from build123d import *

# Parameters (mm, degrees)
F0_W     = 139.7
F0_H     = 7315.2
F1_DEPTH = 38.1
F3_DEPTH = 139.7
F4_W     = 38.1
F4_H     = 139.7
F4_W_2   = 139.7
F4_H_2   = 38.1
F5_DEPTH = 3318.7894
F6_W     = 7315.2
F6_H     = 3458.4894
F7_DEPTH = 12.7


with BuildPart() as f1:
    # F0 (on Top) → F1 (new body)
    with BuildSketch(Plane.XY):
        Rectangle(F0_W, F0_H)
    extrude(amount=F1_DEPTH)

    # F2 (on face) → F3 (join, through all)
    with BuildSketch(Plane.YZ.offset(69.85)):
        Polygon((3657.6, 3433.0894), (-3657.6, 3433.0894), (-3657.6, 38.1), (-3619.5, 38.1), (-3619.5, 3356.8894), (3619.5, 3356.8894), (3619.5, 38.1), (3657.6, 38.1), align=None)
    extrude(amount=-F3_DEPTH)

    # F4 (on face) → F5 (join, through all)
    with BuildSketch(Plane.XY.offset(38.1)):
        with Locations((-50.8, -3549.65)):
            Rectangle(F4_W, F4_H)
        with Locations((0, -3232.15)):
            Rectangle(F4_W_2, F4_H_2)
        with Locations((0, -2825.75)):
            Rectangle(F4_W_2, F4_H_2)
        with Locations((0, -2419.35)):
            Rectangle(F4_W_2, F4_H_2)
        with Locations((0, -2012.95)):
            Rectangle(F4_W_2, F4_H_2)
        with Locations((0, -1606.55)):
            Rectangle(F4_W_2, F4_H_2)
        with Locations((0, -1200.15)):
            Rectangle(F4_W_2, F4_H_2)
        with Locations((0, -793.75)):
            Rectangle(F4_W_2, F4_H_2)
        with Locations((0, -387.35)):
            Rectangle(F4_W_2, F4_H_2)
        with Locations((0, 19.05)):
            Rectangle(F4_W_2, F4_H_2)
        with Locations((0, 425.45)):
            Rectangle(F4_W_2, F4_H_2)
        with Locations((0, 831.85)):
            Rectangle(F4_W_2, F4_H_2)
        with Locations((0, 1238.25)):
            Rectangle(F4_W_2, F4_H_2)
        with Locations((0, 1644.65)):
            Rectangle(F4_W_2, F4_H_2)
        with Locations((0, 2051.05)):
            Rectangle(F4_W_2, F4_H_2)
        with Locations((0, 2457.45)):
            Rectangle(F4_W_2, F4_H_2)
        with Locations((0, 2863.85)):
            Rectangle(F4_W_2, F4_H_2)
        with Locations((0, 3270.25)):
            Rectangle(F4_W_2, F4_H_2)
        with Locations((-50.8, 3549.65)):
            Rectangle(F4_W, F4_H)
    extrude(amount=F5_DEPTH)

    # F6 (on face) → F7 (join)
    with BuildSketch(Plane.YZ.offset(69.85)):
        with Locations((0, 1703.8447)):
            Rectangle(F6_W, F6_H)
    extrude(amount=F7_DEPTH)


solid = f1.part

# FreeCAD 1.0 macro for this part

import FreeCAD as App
import Part
import Sketcher
from FreeCAD import Vector
Q = App.Units.Quantity

doc = App.newDocument("Part")
body = doc.addObject("PartDesign::Body", "Body")

# Sketch on XY plane
sketch1 = body.newObject("Sketcher::SketchObject", "Sketch")
sketch1.AttachmentSupport = (doc.getObject("XY_Plane"), [""])
sketch1.MapMode = "FlatFace"
sketch1.addGeometry([
    Part.LineSegment(Vector(-69.85, 3657.6, 0), Vector(-69.85, -3657.6, 0)),
    Part.LineSegment(Vector(-69.85, -3657.6, 0), Vector(69.85, -3657.6, 0)),
    Part.LineSegment(Vector(69.85, -3657.6, 0), Vector(69.85, 3657.6, 0)),
    Part.LineSegment(Vector(69.85, 3657.6, 0), Vector(-69.85, 3657.6, 0)),
], False)
sketch1.addConstraint([
    Sketcher.Constraint("Coincident", 0, 2, 1, 1),
    Sketcher.Constraint("Coincident", 1, 2, 2, 1),
    Sketcher.Constraint("Coincident", 2, 2, 3, 1),
    Sketcher.Constraint("Coincident", 3, 2, 0, 1),
    Sketcher.Constraint("Vertical", 0),
    Sketcher.Constraint("Horizontal", 1),
    Sketcher.Constraint("Vertical", 2),
    Sketcher.Constraint("Horizontal", 3),
    Sketcher.Constraint("Symmetric", 0, 2, 2, 2, -1, 1),
    Sketcher.Constraint("DistanceY", 0, 2, 0, 1, Q("288 in")),
    Sketcher.Constraint("DistanceX", 1, 1, 1, 2, Q("5.5 in")),
])
pad1 = body.newObject("PartDesign::Pad", "Pad")
pad1.Profile = sketch1
pad1.Length = Q("1.5 in")

# Sketch on YZ plane
sketch2 = body.newObject("Sketcher::SketchObject", "Sketch001")
sketch2.AttachmentSupport = (doc.getObject("YZ_Plane"), [""])
sketch2.MapMode = "FlatFace"
sketch2.AttachmentOffset = App.Placement(Vector(0, 0, 2.75 * 25.4), App.Rotation())
sketch2.addGeometry([
    Part.LineSegment(Vector(3657.6, 3433.0894, 0), Vector(-3657.6, 3433.0894, 0)),  # 0
    Part.LineSegment(Vector(-3657.6, 3433.0894, 0), Vector(-3657.6, 38.1, 0)),  # 1
    Part.LineSegment(Vector(-3657.6, 38.1, 0), Vector(-3619.5, 38.1, 0)),  # 2
    Part.LineSegment(Vector(-3619.5, 38.1, 0), Vector(-3619.5, 3356.8894, 0)),  # 3
    Part.LineSegment(Vector(-3619.5, 3356.8894, 0), Vector(3619.5, 3356.8894, 0)),  # 4
    Part.LineSegment(Vector(3619.5, 3356.8894, 0), Vector(3619.5, 38.1, 0)),  # 5
    Part.LineSegment(Vector(3619.5, 38.1, 0), Vector(3657.6, 38.1, 0)),  # 6
    Part.LineSegment(Vector(3657.6, 38.1, 0), Vector(3657.6, 3433.0894, 0)),  # 7
], False)
sketch2.addConstraint([
    Sketcher.Constraint("Coincident", 0, 2, 1, 1),
    Sketcher.Constraint("Coincident", 1, 2, 2, 1),
    Sketcher.Constraint("Coincident", 2, 2, 3, 1),
    Sketcher.Constraint("Coincident", 3, 2, 4, 1),
    Sketcher.Constraint("Coincident", 4, 2, 5, 1),
    Sketcher.Constraint("Coincident", 5, 2, 6, 1),
    Sketcher.Constraint("Coincident", 6, 2, 7, 1),
    Sketcher.Constraint("Coincident", 7, 2, 0, 1),
    Sketcher.Constraint("Horizontal", 0),
    Sketcher.Constraint("Vertical", 1),
    Sketcher.Constraint("Horizontal", 2),
    Sketcher.Constraint("Vertical", 3),
    Sketcher.Constraint("Horizontal", 4),
    Sketcher.Constraint("Vertical", 5),
    Sketcher.Constraint("Horizontal", 6),
    Sketcher.Constraint("Vertical", 7),
    Sketcher.Constraint("Symmetric", 2, 2, 5, 2, -2),
    Sketcher.Constraint("Equal", 2, 6),
    Sketcher.Constraint("DistanceX", 0, 2, 0, 1, Q("288 in")),
    Sketcher.Constraint("DistanceX", 4, 1, 4, 2, Q("285 in")),
    Sketcher.Constraint("DistanceY", 3, 2, 0, 2, Q("3 in")),
    Sketcher.Constraint("DistanceY", -1, 1, 1, 2, Q("1.5 in")),
    Sketcher.Constraint("DistanceY", 1, 2, 1, 1, Q("133.661 in")),
])
pad2 = body.newObject("PartDesign::Pad", "Pad001")
pad2.Profile = sketch2
pad2.Length = Q("5.5 in")
pad2.Reversed = True

# Sketch on XY plane
sketch3 = body.newObject("Sketcher::SketchObject", "Sketch002")
sketch3.AttachmentSupport = (doc.getObject("XY_Plane"), [""])
sketch3.MapMode = "FlatFace"
sketch3.AttachmentOffset = App.Placement(Vector(0, 0, 1.5 * 25.4), App.Rotation())
sketch3.addGeometry([
    Part.LineSegment(Vector(-69.85, -3479.8, 0), Vector(-69.85, -3619.5, 0)),  # 0
    Part.LineSegment(Vector(-69.85, -3619.5, 0), Vector(-31.75, -3619.5, 0)),  # 1
    Part.LineSegment(Vector(-31.75, -3619.5, 0), Vector(-31.75, -3479.8, 0)),  # 2
    Part.LineSegment(Vector(-31.75, -3479.8, 0), Vector(-69.85, -3479.8, 0)),  # 3
    Part.LineSegment(Vector(-69.85, -3213.1, 0), Vector(-69.85, -3251.2, 0)),  # 4
    Part.LineSegment(Vector(-69.85, -3251.2, 0), Vector(69.85, -3251.2, 0)),  # 5
    Part.LineSegment(Vector(69.85, -3251.2, 0), Vector(69.85, -3213.1, 0)),  # 6
    Part.LineSegment(Vector(69.85, -3213.1, 0), Vector(-69.85, -3213.1, 0)),  # 7
    Part.LineSegment(Vector(-69.85, -2806.7, 0), Vector(-69.85, -2844.8, 0)),  # 8
    Part.LineSegment(Vector(-69.85, -2844.8, 0), Vector(69.85, -2844.8, 0)),  # 9
    Part.LineSegment(Vector(69.85, -2844.8, 0), Vector(69.85, -2806.7, 0)),  # 10
    Part.LineSegment(Vector(69.85, -2806.7, 0), Vector(-69.85, -2806.7, 0)),  # 11
    Part.LineSegment(Vector(-69.85, -2400.3, 0), Vector(-69.85, -2438.4, 0)),  # 12
    Part.LineSegment(Vector(-69.85, -2438.4, 0), Vector(69.85, -2438.4, 0)),  # 13
    Part.LineSegment(Vector(69.85, -2438.4, 0), Vector(69.85, -2400.3, 0)),  # 14
    Part.LineSegment(Vector(69.85, -2400.3, 0), Vector(-69.85, -2400.3, 0)),  # 15
    Part.LineSegment(Vector(-69.85, -1993.9, 0), Vector(-69.85, -2032, 0)),  # 16
    Part.LineSegment(Vector(-69.85, -2032, 0), Vector(69.85, -2032, 0)),  # 17
    Part.LineSegment(Vector(69.85, -2032, 0), Vector(69.85, -1993.9, 0)),  # 18
    Part.LineSegment(Vector(69.85, -1993.9, 0), Vector(-69.85, -1993.9, 0)),  # 19
    Part.LineSegment(Vector(-69.85, -1587.5, 0), Vector(-69.85, -1625.6, 0)),  # 20
    Part.LineSegment(Vector(-69.85, -1625.6, 0), Vector(69.85, -1625.6, 0)),  # 21
    Part.LineSegment(Vector(69.85, -1625.6, 0), Vector(69.85, -1587.5, 0)),  # 22
    Part.LineSegment(Vector(69.85, -1587.5, 0), Vector(-69.85, -1587.5, 0)),  # 23
    Part.LineSegment(Vector(-69.85, -1181.1, 0), Vector(-69.85, -1219.2, 0)),  # 24
    Part.LineSegment(Vector(-69.85, -1219.2, 0), Vector(69.85, -1219.2, 0)),  # 25
    Part.LineSegment(Vector(69.85, -1219.2, 0), Vector(69.85, -1181.1, 0)),  # 26
    Part.LineSegment(Vector(69.85, -1181.1, 0), Vector(-69.85, -1181.1, 0)),  # 27
    Part.LineSegment(Vector(-69.85, -774.7, 0), Vector(-69.85, -812.8, 0)),  # 28
    Part.LineSegment(Vector(-69.85, -812.8, 0), Vector(69.85, -812.8, 0)),  # 29
    Part.LineSegment(Vector(69.85, -812.8, 0), Vector(69.85, -774.7, 0)),  # 30
    Part.LineSegment(Vector(69.85, -774.7, 0), Vector(-69.85, -774.7, 0)),  # 31
    Part.LineSegment(Vector(-69.85, -368.3, 0), Vector(-69.85, -406.4, 0)),  # 32
    Part.LineSegment(Vector(-69.85, -406.4, 0), Vector(69.85, -406.4, 0)),  # 33
    Part.LineSegment(Vector(69.85, -406.4, 0), Vector(69.85, -368.3, 0)),  # 34
    Part.LineSegment(Vector(69.85, -368.3, 0), Vector(-69.85, -368.3, 0)),  # 35
    Part.LineSegment(Vector(-69.85, 38.1, 0), Vector(-69.85, 0, 0)),  # 36
    Part.LineSegment(Vector(-69.85, 0, 0), Vector(69.85, 0, 0)),  # 37
    Part.LineSegment(Vector(69.85, 0, 0), Vector(69.85, 38.1, 0)),  # 38
    Part.LineSegment(Vector(69.85, 38.1, 0), Vector(-69.85, 38.1, 0)),  # 39
    Part.LineSegment(Vector(-69.85, 444.5, 0), Vector(-69.85, 406.4, 0)),  # 40
    Part.LineSegment(Vector(-69.85, 406.4, 0), Vector(69.85, 406.4, 0)),  # 41
    Part.LineSegment(Vector(69.85, 406.4, 0), Vector(69.85, 444.5, 0)),  # 42
    Part.LineSegment(Vector(69.85, 444.5, 0), Vector(-69.85, 444.5, 0)),  # 43
    Part.LineSegment(Vector(-69.85, 850.9, 0), Vector(-69.85, 812.8, 0)),  # 44
    Part.LineSegment(Vector(-69.85, 812.8, 0), Vector(69.85, 812.8, 0)),  # 45
    Part.LineSegment(Vector(69.85, 812.8, 0), Vector(69.85, 850.9, 0)),  # 46
    Part.LineSegment(Vector(69.85, 850.9, 0), Vector(-69.85, 850.9, 0)),  # 47
    Part.LineSegment(Vector(-69.85, 1257.3, 0), Vector(-69.85, 1219.2, 0)),  # 48
    Part.LineSegment(Vector(-69.85, 1219.2, 0), Vector(69.85, 1219.2, 0)),  # 49
    Part.LineSegment(Vector(69.85, 1219.2, 0), Vector(69.85, 1257.3, 0)),  # 50
    Part.LineSegment(Vector(69.85, 1257.3, 0), Vector(-69.85, 1257.3, 0)),  # 51
    Part.LineSegment(Vector(-69.85, 1663.7, 0), Vector(-69.85, 1625.6, 0)),  # 52
    Part.LineSegment(Vector(-69.85, 1625.6, 0), Vector(69.85, 1625.6, 0)),  # 53
    Part.LineSegment(Vector(69.85, 1625.6, 0), Vector(69.85, 1663.7, 0)),  # 54
    Part.LineSegment(Vector(69.85, 1663.7, 0), Vector(-69.85, 1663.7, 0)),  # 55
    Part.LineSegment(Vector(-69.85, 2070.1, 0), Vector(-69.85, 2032, 0)),  # 56
    Part.LineSegment(Vector(-69.85, 2032, 0), Vector(69.85, 2032, 0)),  # 57
    Part.LineSegment(Vector(69.85, 2032, 0), Vector(69.85, 2070.1, 0)),  # 58
    Part.LineSegment(Vector(69.85, 2070.1, 0), Vector(-69.85, 2070.1, 0)),  # 59
    Part.LineSegment(Vector(-69.85, 2476.5, 0), Vector(-69.85, 2438.4, 0)),  # 60
    Part.LineSegment(Vector(-69.85, 2438.4, 0), Vector(69.85, 2438.4, 0)),  # 61
    Part.LineSegment(Vector(69.85, 2438.4, 0), Vector(69.85, 2476.5, 0)),  # 62
    Part.LineSegment(Vector(69.85, 2476.5, 0), Vector(-69.85, 2476.5, 0)),  # 63
    Part.LineSegment(Vector(-69.85, 2882.9, 0), Vector(-69.85, 2844.8, 0)),  # 64
    Part.LineSegment(Vector(-69.85, 2844.8, 0), Vector(69.85, 2844.8, 0)),  # 65
    Part.LineSegment(Vector(69.85, 2844.8, 0), Vector(69.85, 2882.9, 0)),  # 66
    Part.LineSegment(Vector(69.85, 2882.9, 0), Vector(-69.85, 2882.9, 0)),  # 67
    Part.LineSegment(Vector(-69.85, 3289.3, 0), Vector(-69.85, 3251.2, 0)),  # 68
    Part.LineSegment(Vector(-69.85, 3251.2, 0), Vector(69.85, 3251.2, 0)),  # 69
    Part.LineSegment(Vector(69.85, 3251.2, 0), Vector(69.85, 3289.3, 0)),  # 70
    Part.LineSegment(Vector(69.85, 3289.3, 0), Vector(-69.85, 3289.3, 0)),  # 71
    Part.LineSegment(Vector(-69.85, 3619.5, 0), Vector(-69.85, 3479.8, 0)),  # 72
    Part.LineSegment(Vector(-69.85, 3479.8, 0), Vector(-31.75, 3479.8, 0)),  # 73
    Part.LineSegment(Vector(-31.75, 3479.8, 0), Vector(-31.75, 3619.5, 0)),  # 74
    Part.LineSegment(Vector(-31.75, 3619.5, 0), Vector(-69.85, 3619.5, 0)),  # 75
], False)
sketch3.addConstraint([
    Sketcher.Constraint("Coincident", 0, 2, 1, 1),
    Sketcher.Constraint("Coincident", 1, 2, 2, 1),
    Sketcher.Constraint("Coincident", 2, 2, 3, 1),
    Sketcher.Constraint("Coincident", 3, 2, 0, 1),
    Sketcher.Constraint("Coincident", 4, 2, 5, 1),
    Sketcher.Constraint("Coincident", 5, 2, 6, 1),
    Sketcher.Constraint("Coincident", 6, 2, 7, 1),
    Sketcher.Constraint("Coincident", 7, 2, 4, 1),
    Sketcher.Constraint("Coincident", 8, 2, 9, 1),
    Sketcher.Constraint("Coincident", 9, 2, 10, 1),
    Sketcher.Constraint("Coincident", 10, 2, 11, 1),
    Sketcher.Constraint("Coincident", 11, 2, 8, 1),
    Sketcher.Constraint("Coincident", 12, 2, 13, 1),
    Sketcher.Constraint("Coincident", 13, 2, 14, 1),
    Sketcher.Constraint("Coincident", 14, 2, 15, 1),
    Sketcher.Constraint("Coincident", 15, 2, 12, 1),
    Sketcher.Constraint("Coincident", 16, 2, 17, 1),
    Sketcher.Constraint("Coincident", 17, 2, 18, 1),
    Sketcher.Constraint("Coincident", 18, 2, 19, 1),
    Sketcher.Constraint("Coincident", 19, 2, 16, 1),
    Sketcher.Constraint("Coincident", 20, 2, 21, 1),
    Sketcher.Constraint("Coincident", 21, 2, 22, 1),
    Sketcher.Constraint("Coincident", 22, 2, 23, 1),
    Sketcher.Constraint("Coincident", 23, 2, 20, 1),
    Sketcher.Constraint("Coincident", 24, 2, 25, 1),
    Sketcher.Constraint("Coincident", 25, 2, 26, 1),
    Sketcher.Constraint("Coincident", 26, 2, 27, 1),
    Sketcher.Constraint("Coincident", 27, 2, 24, 1),
    Sketcher.Constraint("Coincident", 28, 2, 29, 1),
    Sketcher.Constraint("Coincident", 29, 2, 30, 1),
    Sketcher.Constraint("Coincident", 30, 2, 31, 1),
    Sketcher.Constraint("Coincident", 31, 2, 28, 1),
    Sketcher.Constraint("Coincident", 32, 2, 33, 1),
    Sketcher.Constraint("Coincident", 33, 2, 34, 1),
    Sketcher.Constraint("Coincident", 34, 2, 35, 1),
    Sketcher.Constraint("Coincident", 35, 2, 32, 1),
    Sketcher.Constraint("Coincident", 36, 2, 37, 1),
    Sketcher.Constraint("Coincident", 37, 2, 38, 1),
    Sketcher.Constraint("Coincident", 38, 2, 39, 1),
    Sketcher.Constraint("Coincident", 39, 2, 36, 1),
    Sketcher.Constraint("Coincident", 40, 2, 41, 1),
    Sketcher.Constraint("Coincident", 41, 2, 42, 1),
    Sketcher.Constraint("Coincident", 42, 2, 43, 1),
    Sketcher.Constraint("Coincident", 43, 2, 40, 1),
    Sketcher.Constraint("Coincident", 44, 2, 45, 1),
    Sketcher.Constraint("Coincident", 45, 2, 46, 1),
    Sketcher.Constraint("Coincident", 46, 2, 47, 1),
    Sketcher.Constraint("Coincident", 47, 2, 44, 1),
    Sketcher.Constraint("Coincident", 48, 2, 49, 1),
    Sketcher.Constraint("Coincident", 49, 2, 50, 1),
    Sketcher.Constraint("Coincident", 50, 2, 51, 1),
    Sketcher.Constraint("Coincident", 51, 2, 48, 1),
    Sketcher.Constraint("Coincident", 52, 2, 53, 1),
    Sketcher.Constraint("Coincident", 53, 2, 54, 1),
    Sketcher.Constraint("Coincident", 54, 2, 55, 1),
    Sketcher.Constraint("Coincident", 55, 2, 52, 1),
    Sketcher.Constraint("Coincident", 56, 2, 57, 1),
    Sketcher.Constraint("Coincident", 57, 2, 58, 1),
    Sketcher.Constraint("Coincident", 58, 2, 59, 1),
    Sketcher.Constraint("Coincident", 59, 2, 56, 1),
    Sketcher.Constraint("Coincident", 60, 2, 61, 1),
    Sketcher.Constraint("Coincident", 61, 2, 62, 1),
    Sketcher.Constraint("Coincident", 62, 2, 63, 1),
    Sketcher.Constraint("Coincident", 63, 2, 60, 1),
    Sketcher.Constraint("Coincident", 64, 2, 65, 1),
    Sketcher.Constraint("Coincident", 65, 2, 66, 1),
    Sketcher.Constraint("Coincident", 66, 2, 67, 1),
    Sketcher.Constraint("Coincident", 67, 2, 64, 1),
    Sketcher.Constraint("Coincident", 68, 2, 69, 1),
    Sketcher.Constraint("Coincident", 69, 2, 70, 1),
    Sketcher.Constraint("Coincident", 70, 2, 71, 1),
    Sketcher.Constraint("Coincident", 71, 2, 68, 1),
    Sketcher.Constraint("Coincident", 72, 2, 73, 1),
    Sketcher.Constraint("Coincident", 73, 2, 74, 1),
    Sketcher.Constraint("Coincident", 74, 2, 75, 1),
    Sketcher.Constraint("Coincident", 75, 2, 72, 1),
    Sketcher.Constraint("Vertical", 0),
    Sketcher.Constraint("Horizontal", 1),
    Sketcher.Constraint("Vertical", 2),
    Sketcher.Constraint("Horizontal", 3),
    Sketcher.Constraint("Vertical", 4),
    Sketcher.Constraint("Horizontal", 5),
    Sketcher.Constraint("Vertical", 6),
    Sketcher.Constraint("Horizontal", 7),
    Sketcher.Constraint("Vertical", 8),
    Sketcher.Constraint("Horizontal", 9),
    Sketcher.Constraint("Vertical", 10),
    Sketcher.Constraint("Horizontal", 11),
    Sketcher.Constraint("Vertical", 12),
    Sketcher.Constraint("Horizontal", 13),
    Sketcher.Constraint("Vertical", 14),
    Sketcher.Constraint("Horizontal", 15),
    Sketcher.Constraint("Vertical", 16),
    Sketcher.Constraint("Horizontal", 17),
    Sketcher.Constraint("Vertical", 18),
    Sketcher.Constraint("Horizontal", 19),
    Sketcher.Constraint("Vertical", 20),
    Sketcher.Constraint("Horizontal", 21),
    Sketcher.Constraint("Vertical", 22),
    Sketcher.Constraint("Horizontal", 23),
    Sketcher.Constraint("Vertical", 24),
    Sketcher.Constraint("Horizontal", 25),
    Sketcher.Constraint("Vertical", 26),
    Sketcher.Constraint("Horizontal", 27),
    Sketcher.Constraint("Vertical", 28),
    Sketcher.Constraint("Horizontal", 29),
    Sketcher.Constraint("Vertical", 30),
    Sketcher.Constraint("Horizontal", 31),
    Sketcher.Constraint("Vertical", 32),
    Sketcher.Constraint("Horizontal", 33),
    Sketcher.Constraint("Vertical", 34),
    Sketcher.Constraint("Horizontal", 35),
    Sketcher.Constraint("Vertical", 36),
    Sketcher.Constraint("Horizontal", 37),
    Sketcher.Constraint("Vertical", 38),
    Sketcher.Constraint("Horizontal", 39),
    Sketcher.Constraint("Vertical", 40),
    Sketcher.Constraint("Horizontal", 41),
    Sketcher.Constraint("Vertical", 42),
    Sketcher.Constraint("Horizontal", 43),
    Sketcher.Constraint("Vertical", 44),
    Sketcher.Constraint("Horizontal", 45),
    Sketcher.Constraint("Vertical", 46),
    Sketcher.Constraint("Horizontal", 47),
    Sketcher.Constraint("Vertical", 48),
    Sketcher.Constraint("Horizontal", 49),
    Sketcher.Constraint("Vertical", 50),
    Sketcher.Constraint("Horizontal", 51),
    Sketcher.Constraint("Vertical", 52),
    Sketcher.Constraint("Horizontal", 53),
    Sketcher.Constraint("Vertical", 54),
    Sketcher.Constraint("Horizontal", 55),
    Sketcher.Constraint("Vertical", 56),
    Sketcher.Constraint("Horizontal", 57),
    Sketcher.Constraint("Vertical", 58),
    Sketcher.Constraint("Horizontal", 59),
    Sketcher.Constraint("Vertical", 60),
    Sketcher.Constraint("Horizontal", 61),
    Sketcher.Constraint("Vertical", 62),
    Sketcher.Constraint("Horizontal", 63),
    Sketcher.Constraint("Vertical", 64),
    Sketcher.Constraint("Horizontal", 65),
    Sketcher.Constraint("Vertical", 66),
    Sketcher.Constraint("Horizontal", 67),
    Sketcher.Constraint("Vertical", 68),
    Sketcher.Constraint("Horizontal", 69),
    Sketcher.Constraint("Vertical", 70),
    Sketcher.Constraint("Horizontal", 71),
    Sketcher.Constraint("Vertical", 72),
    Sketcher.Constraint("Horizontal", 73),
    Sketcher.Constraint("Vertical", 74),
    Sketcher.Constraint("Horizontal", 75),
    Sketcher.Constraint("Symmetric", 36, 2, 37, 2, -1, 1),
    Sketcher.Constraint("Symmetric", 33, 2, 40, 2, -1, 1),
    Sketcher.Constraint("Symmetric", 29, 2, 44, 2, -1, 1),
    Sketcher.Constraint("Symmetric", 25, 2, 48, 2, -1, 1),
    Sketcher.Constraint("Symmetric", 21, 2, 52, 2, -1, 1),
    Sketcher.Constraint("Symmetric", 17, 2, 56, 2, -1, 1),
    Sketcher.Constraint("Symmetric", 13, 2, 60, 2, -1, 1),
    Sketcher.Constraint("Symmetric", 9, 2, 64, 2, -1, 1),
    Sketcher.Constraint("Symmetric", 5, 2, 68, 2, -1, 1),
    Sketcher.Constraint("Symmetric", 3, 2, 72, 2, -1),
    Sketcher.Constraint("Symmetric", 1, 2, 74, 2, -1),
    Sketcher.Constraint("Vertical", 3, 2, 4, 2),
    Sketcher.Constraint("Vertical", 7, 2, 8, 2),
    Sketcher.Constraint("Vertical", 6, 2, 9, 2),
    Sketcher.Constraint("Vertical", 11, 2, 12, 2),
    Sketcher.Constraint("Vertical", 10, 2, 13, 2),
    Sketcher.Constraint("Vertical", 15, 2, 16, 2),
    Sketcher.Constraint("Vertical", 14, 2, 17, 2),
    Sketcher.Constraint("Vertical", 19, 2, 20, 2),
    Sketcher.Constraint("Vertical", 18, 2, 21, 2),
    Sketcher.Constraint("Vertical", 23, 2, 24, 2),
    Sketcher.Constraint("Vertical", 22, 2, 25, 2),
    Sketcher.Constraint("Vertical", 27, 2, 28, 2),
    Sketcher.Constraint("Vertical", 26, 2, 29, 2),
    Sketcher.Constraint("Vertical", 31, 2, 32, 2),
    Sketcher.Constraint("Vertical", 30, 2, 33, 2),
    Sketcher.Constraint("Vertical", 35, 2, 36, 2),
    Sketcher.Constraint("Vertical", 34, 2, 37, 2),
    Sketcher.Constraint("Vertical", 38, 2, 41, 2),
    Sketcher.Constraint("Vertical", 42, 2, 45, 2),
    Sketcher.Constraint("Vertical", 46, 2, 49, 2),
    Sketcher.Constraint("Vertical", 50, 2, 53, 2),
    Sketcher.Constraint("Vertical", 54, 2, 57, 2),
    Sketcher.Constraint("Vertical", 58, 2, 61, 2),
    Sketcher.Constraint("Vertical", 62, 2, 65, 2),
    Sketcher.Constraint("Vertical", 66, 2, 69, 2),
    Sketcher.Constraint("Equal", 71, 0),
    Sketcher.Constraint("Equal", 75, 4),
    Sketcher.Constraint("Equal", 6, 8),
    Sketcher.Constraint("Equal", 10, 12),
    Sketcher.Constraint("Equal", 14, 16),
    Sketcher.Constraint("Equal", 18, 20),
    Sketcher.Constraint("Equal", 22, 24),
    Sketcher.Constraint("Equal", 26, 28),
    Sketcher.Constraint("Equal", 30, 32),
    Sketcher.Constraint("Equal", 34, 36),
    Sketcher.Constraint("Equal", 38, 40),
    Sketcher.Constraint("Equal", 42, 44),
    Sketcher.Constraint("Equal", 46, 48),
    Sketcher.Constraint("Equal", 50, 52),
    Sketcher.Constraint("Equal", 54, 56),
    Sketcher.Constraint("Equal", 58, 60),
    Sketcher.Constraint("Equal", 62, 64),
    Sketcher.Constraint("Equal", 66, 68),
    Sketcher.Constraint("DistanceX", 1, 1, 1, 2, Q("1.5 in")),
    Sketcher.Constraint("DistanceX", 5, 1, 5, 2, Q("5.5 in")),
    Sketcher.Constraint("DistanceY", 2, 2, -1, 1, Q("137 in")),
    Sketcher.Constraint("DistanceY", 4, 2, -1, 1, Q("128 in")),
    Sketcher.Constraint("DistanceY", 8, 2, -1, 1, Q("112 in")),
    Sketcher.Constraint("DistanceY", 12, 2, -1, 1, Q("96 in")),
    Sketcher.Constraint("DistanceY", 16, 2, -1, 1, Q("80 in")),
    Sketcher.Constraint("DistanceY", 20, 2, -1, 1, Q("64 in")),
    Sketcher.Constraint("DistanceY", 24, 2, -1, 1, Q("48 in")),
    Sketcher.Constraint("DistanceY", 28, 2, -1, 1, Q("32 in")),
    Sketcher.Constraint("DistanceY", 32, 2, -1, 1, Q("16 in")),
])
pad3 = body.newObject("PartDesign::Pad", "Pad002")
pad3.Profile = sketch3
pad3.Type = "UpToLast"

# Sketch on YZ plane
sketch4 = body.newObject("Sketcher::SketchObject", "Sketch003")
sketch4.AttachmentSupport = (doc.getObject("YZ_Plane"), [""])
sketch4.MapMode = "FlatFace"
sketch4.AttachmentOffset = App.Placement(Vector(0, 0, 2.75 * 25.4), App.Rotation())
sketch4.addGeometry([
    Part.LineSegment(Vector(-3657.6, 3433.0894, 0), Vector(-3657.6, -25.4, 0)),
    Part.LineSegment(Vector(-3657.6, -25.4, 0), Vector(3657.6, -25.4, 0)),
    Part.LineSegment(Vector(3657.6, -25.4, 0), Vector(3657.6, 3433.0894, 0)),
    Part.LineSegment(Vector(3657.6, 3433.0894, 0), Vector(-3657.6, 3433.0894, 0)),
], False)
sketch4.addConstraint([
    Sketcher.Constraint("Coincident", 0, 2, 1, 1),
    Sketcher.Constraint("Coincident", 1, 2, 2, 1),
    Sketcher.Constraint("Coincident", 2, 2, 3, 1),
    Sketcher.Constraint("Coincident", 3, 2, 0, 1),
    Sketcher.Constraint("Vertical", 0),
    Sketcher.Constraint("Horizontal", 1),
    Sketcher.Constraint("Vertical", 2),
    Sketcher.Constraint("Horizontal", 3),
    Sketcher.Constraint("DistanceX", 1, 1, 1, 2, Q("288 in")),
    Sketcher.Constraint("DistanceX", 0, 2, -1, 1, Q("144 in")),
    Sketcher.Constraint("DistanceY", 0, 2, -1, 1, Q("1 in")),
    Sketcher.Constraint("DistanceY", 0, 2, 0, 1, Q("136.161 in")),
])
pad4 = body.newObject("PartDesign::Pad", "Pad003")
pad4.Profile = sketch4
pad4.Length = Q("0.5 in")

doc.recompute()
